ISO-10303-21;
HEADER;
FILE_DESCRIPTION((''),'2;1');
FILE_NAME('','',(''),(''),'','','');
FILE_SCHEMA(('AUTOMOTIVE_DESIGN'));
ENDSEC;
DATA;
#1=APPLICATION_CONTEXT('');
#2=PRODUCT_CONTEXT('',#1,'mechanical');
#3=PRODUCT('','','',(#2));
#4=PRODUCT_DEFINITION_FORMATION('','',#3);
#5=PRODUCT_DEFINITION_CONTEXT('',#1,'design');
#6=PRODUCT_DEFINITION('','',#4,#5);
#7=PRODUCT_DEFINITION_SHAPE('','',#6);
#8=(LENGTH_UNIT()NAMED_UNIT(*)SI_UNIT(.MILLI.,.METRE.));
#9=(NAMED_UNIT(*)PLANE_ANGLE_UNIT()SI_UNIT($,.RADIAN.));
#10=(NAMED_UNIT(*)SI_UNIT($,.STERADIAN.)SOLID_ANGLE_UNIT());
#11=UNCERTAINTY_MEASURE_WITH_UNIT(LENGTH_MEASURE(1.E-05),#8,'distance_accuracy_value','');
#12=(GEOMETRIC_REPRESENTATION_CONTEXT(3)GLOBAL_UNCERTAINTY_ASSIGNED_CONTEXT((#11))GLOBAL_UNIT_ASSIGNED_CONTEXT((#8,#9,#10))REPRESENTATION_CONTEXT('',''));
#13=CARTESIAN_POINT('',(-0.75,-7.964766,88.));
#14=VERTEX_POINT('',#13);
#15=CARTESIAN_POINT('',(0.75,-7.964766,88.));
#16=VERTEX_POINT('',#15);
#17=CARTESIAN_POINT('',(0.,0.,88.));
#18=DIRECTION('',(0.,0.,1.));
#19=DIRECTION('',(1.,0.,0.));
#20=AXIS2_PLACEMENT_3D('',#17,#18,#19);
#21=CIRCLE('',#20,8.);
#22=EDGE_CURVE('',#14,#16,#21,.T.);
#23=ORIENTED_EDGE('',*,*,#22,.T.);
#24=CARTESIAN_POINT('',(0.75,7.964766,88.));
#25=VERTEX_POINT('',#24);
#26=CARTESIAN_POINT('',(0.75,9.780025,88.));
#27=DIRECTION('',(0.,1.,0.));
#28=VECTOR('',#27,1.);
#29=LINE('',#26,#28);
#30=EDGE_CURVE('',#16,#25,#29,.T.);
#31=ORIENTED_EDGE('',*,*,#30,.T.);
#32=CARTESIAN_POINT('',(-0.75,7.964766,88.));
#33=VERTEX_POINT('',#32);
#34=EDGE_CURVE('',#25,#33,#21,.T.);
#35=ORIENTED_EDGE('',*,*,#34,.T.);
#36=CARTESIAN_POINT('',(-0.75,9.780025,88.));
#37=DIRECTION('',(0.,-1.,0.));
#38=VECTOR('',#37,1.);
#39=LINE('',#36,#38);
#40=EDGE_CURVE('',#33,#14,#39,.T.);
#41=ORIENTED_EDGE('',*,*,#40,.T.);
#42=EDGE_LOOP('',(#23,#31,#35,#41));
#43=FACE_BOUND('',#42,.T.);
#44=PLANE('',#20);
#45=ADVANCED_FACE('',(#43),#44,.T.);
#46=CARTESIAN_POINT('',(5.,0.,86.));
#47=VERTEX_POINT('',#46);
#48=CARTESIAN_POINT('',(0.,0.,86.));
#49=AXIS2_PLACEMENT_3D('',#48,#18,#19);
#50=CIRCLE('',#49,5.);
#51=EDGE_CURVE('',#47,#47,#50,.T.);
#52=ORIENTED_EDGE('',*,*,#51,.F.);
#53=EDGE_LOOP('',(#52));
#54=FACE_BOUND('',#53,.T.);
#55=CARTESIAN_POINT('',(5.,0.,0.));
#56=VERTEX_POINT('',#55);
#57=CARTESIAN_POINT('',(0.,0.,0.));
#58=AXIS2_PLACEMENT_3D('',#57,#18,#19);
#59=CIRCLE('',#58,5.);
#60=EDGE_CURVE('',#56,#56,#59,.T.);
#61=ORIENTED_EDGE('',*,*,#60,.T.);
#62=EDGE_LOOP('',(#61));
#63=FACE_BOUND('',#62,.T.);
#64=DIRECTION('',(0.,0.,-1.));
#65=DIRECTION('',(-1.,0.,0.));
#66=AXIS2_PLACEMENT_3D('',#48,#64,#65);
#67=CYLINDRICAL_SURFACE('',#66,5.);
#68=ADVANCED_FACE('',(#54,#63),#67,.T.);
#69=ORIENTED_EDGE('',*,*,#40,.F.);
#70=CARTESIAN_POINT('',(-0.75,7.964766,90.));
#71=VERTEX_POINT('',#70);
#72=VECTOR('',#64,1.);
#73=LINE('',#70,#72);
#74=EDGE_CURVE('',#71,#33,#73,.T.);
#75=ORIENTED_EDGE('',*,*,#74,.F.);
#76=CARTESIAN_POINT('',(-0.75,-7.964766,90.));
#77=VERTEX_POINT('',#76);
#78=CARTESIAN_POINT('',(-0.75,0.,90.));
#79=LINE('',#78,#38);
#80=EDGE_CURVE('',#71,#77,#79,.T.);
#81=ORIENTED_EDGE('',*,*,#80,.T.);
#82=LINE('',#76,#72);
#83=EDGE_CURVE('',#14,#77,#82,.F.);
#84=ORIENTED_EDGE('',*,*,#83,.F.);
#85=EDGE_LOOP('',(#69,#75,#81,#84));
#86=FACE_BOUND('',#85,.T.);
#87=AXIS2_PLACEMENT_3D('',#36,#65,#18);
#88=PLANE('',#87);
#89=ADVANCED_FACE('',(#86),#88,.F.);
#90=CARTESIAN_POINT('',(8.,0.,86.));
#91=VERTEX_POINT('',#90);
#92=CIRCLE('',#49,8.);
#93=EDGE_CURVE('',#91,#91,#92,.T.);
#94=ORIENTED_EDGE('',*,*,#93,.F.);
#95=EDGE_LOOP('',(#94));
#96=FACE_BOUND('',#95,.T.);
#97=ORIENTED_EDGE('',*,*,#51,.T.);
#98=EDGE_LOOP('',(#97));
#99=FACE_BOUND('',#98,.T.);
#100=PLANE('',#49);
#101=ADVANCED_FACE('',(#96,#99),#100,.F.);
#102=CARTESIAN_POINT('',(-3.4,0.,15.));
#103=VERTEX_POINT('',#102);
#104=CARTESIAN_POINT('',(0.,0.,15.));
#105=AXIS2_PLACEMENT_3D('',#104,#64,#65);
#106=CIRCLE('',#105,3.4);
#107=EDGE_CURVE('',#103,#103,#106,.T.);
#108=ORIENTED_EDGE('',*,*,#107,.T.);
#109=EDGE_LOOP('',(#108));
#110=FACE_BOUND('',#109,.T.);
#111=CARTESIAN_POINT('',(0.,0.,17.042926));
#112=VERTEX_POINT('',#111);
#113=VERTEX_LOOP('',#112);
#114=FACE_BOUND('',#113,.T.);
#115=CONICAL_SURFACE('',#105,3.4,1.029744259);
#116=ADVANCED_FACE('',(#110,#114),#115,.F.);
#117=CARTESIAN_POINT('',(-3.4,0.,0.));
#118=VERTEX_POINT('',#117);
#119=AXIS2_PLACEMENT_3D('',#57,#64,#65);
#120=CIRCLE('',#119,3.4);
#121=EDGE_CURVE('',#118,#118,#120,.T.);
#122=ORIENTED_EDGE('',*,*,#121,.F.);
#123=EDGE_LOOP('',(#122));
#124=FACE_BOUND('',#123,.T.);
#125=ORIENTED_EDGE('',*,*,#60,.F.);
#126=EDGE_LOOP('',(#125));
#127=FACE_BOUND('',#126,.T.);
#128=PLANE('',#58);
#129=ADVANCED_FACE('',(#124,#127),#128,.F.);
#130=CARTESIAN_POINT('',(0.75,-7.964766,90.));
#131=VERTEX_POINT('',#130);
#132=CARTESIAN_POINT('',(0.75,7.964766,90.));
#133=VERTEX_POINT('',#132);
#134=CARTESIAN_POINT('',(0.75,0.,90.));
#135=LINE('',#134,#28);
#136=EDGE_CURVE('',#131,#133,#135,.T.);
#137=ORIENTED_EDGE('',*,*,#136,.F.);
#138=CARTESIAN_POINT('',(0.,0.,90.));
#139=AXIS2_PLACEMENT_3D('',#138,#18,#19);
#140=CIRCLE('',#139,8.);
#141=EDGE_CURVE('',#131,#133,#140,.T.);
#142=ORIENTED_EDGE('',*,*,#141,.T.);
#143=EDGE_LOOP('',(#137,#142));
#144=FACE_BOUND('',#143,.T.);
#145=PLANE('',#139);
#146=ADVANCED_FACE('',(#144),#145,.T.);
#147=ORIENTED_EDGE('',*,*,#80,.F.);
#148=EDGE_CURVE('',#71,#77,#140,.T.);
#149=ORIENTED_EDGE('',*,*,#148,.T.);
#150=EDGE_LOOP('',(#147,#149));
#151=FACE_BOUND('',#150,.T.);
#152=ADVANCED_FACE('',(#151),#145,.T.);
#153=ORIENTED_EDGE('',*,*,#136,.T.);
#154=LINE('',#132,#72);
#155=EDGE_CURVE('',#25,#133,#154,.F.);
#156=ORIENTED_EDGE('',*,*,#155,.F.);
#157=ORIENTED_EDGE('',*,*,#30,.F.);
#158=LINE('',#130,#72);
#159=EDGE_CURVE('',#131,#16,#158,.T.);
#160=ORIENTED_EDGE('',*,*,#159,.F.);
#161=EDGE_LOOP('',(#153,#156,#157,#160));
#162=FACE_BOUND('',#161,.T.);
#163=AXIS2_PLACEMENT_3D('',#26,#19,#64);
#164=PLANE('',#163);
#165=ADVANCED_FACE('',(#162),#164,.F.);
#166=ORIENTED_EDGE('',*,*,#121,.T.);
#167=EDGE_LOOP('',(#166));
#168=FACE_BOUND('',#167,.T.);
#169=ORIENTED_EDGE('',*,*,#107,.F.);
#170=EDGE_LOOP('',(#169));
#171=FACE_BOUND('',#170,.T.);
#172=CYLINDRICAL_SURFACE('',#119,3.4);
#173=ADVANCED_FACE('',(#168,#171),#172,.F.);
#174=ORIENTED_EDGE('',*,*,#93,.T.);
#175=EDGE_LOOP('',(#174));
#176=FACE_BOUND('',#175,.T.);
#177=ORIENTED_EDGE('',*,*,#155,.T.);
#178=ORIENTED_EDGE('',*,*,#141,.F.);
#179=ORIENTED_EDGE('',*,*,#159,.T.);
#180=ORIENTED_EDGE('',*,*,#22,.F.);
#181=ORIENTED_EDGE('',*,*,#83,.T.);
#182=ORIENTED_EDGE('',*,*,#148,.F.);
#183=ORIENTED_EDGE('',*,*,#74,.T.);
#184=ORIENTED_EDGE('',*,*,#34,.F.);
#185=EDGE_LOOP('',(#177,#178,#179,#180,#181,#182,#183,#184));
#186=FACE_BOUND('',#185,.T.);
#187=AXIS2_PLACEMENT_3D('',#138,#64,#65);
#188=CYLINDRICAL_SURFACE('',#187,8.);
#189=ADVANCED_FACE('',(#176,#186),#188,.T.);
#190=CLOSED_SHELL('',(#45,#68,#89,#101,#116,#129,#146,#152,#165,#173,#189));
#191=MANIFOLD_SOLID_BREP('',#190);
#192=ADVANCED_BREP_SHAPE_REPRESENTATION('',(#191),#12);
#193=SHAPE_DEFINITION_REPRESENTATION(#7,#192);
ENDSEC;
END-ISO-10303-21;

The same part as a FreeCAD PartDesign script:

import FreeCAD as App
import Part
import Sketcher

V = App.Vector

doc = App.newDocument("Part")
body = doc.addObject("PartDesign::Body", "Body")

# Sketch on XY plane
sketch1 = body.newObject("Sketcher::SketchObject", "Sketch")
sketch1.AttachmentSupport = (doc.getObject("XY_Plane"), [""])
sketch1.MapMode = "FlatFace"
sketch1.addGeometry(Part.Circle(V(0, 0, 0), V(0, 0, 1), 5), False)
sketch1.addConstraint([
    Sketcher.Constraint("Coincident", 0, 3, -1, 1),
    Sketcher.Constraint("Diameter", 0, 10.0),
])
pad1 = body.newObject("PartDesign::Pad", "Pad")
pad1.Profile = sketch1
pad1.Length = 86

# Sketch on XY plane
sketch2 = body.newObject("Sketcher::SketchObject", "Sketch001")
sketch2.AttachmentSupport = (doc.getObject("XY_Plane"), [""])
sketch2.MapMode = "FlatFace"
sketch2.AttachmentOffset = App.Placement(V(0, 0, 86), App.Rotation())
sketch2.addGeometry(Part.Circle(V(0, 0, 0), V(0, 0, 1), 8), False)
sketch2.addConstraint([
    Sketcher.Constraint("Coincident", 0, 3, -1, 1),
    Sketcher.Constraint("Diameter", 0, 16.0),
])
pad2 = body.newObject("PartDesign::Pad", "Pad001")
pad2.Profile = sketch2
pad2.Length = 4

# Sketch on XY plane
sketch3 = body.newObject("Sketcher::SketchObject", "Sketch002")
sketch3.AttachmentSupport = (doc.getObject("XY_Plane"), [""])
sketch3.MapMode = "FlatFace"
sketch3.AttachmentOffset = App.Placement(V(0, 0, 90), App.Rotation())
sketch3.addGeometry([
    Part.LineSegment(V(-0.75, 9.780025, 0), V(-0.75, -9.780025, 0)),
    Part.LineSegment(V(-0.75, -9.780025, 0), V(0.75, -9.780025, 0)),
    Part.LineSegment(V(0.75, -9.780025, 0), V(0.75, 9.780025, 0)),
    Part.LineSegment(V(0.75, 9.780025, 0), V(-0.75, 9.780025, 0)),
], False)
sketch3.addConstraint([
    Sketcher.Constraint("Coincident", 0, 2, 1, 1),
    Sketcher.Constraint("Coincident", 1, 2, 2, 1),
    Sketcher.Constraint("Coincident", 2, 2, 3, 1),
    Sketcher.Constraint("Coincident", 3, 2, 0, 1),
    Sketcher.Constraint("Vertical", 0),
    Sketcher.Constraint("Horizontal", 1),
    Sketcher.Constraint("Vertical", 2),
    Sketcher.Constraint("Horizontal", 3),
    Sketcher.Constraint("Symmetric", 0, 2, 2, 2, -1, 1),
    Sketcher.Constraint("DistanceX", 1, 1, 1, 2, 1.5),
    Sketcher.Constraint("DistanceY", 0, 2, 0, 1, 19.56005),
])
pocket1 = body.newObject("PartDesign::Pocket", "Pocket")
pocket1.Profile = sketch3
pocket1.Length = 2

# Sketch on XY plane
sketch4 = body.newObject("Sketcher::SketchObject", "Sketch003")
sketch4.AttachmentSupport = (doc.getObject("XY_Plane"), [""])
sketch4.MapMode = "FlatFace"
sketch4.addGeometry(Part.Circle(V(0, 0, 0), V(0, 0, 1), 3.4), False)
sketch4.addConstraint([
    Sketcher.Constraint("Coincident", 0, 3, -1, 1),
    Sketcher.Constraint("Diameter", 0, 6.8),
])
doc.recompute()
hole = body.newObject("PartDesign::Hole", "Hole")
hole.Profile = sketch4
hole.ThreadType = "None"
hole.Diameter = 6.8
hole.DepthType = "Dimension"
hole.Depth = 15
hole.DrillPoint = "Angled"
hole.DrillPointAngle = 118
hole.Reversed = True

doc.recompute()
